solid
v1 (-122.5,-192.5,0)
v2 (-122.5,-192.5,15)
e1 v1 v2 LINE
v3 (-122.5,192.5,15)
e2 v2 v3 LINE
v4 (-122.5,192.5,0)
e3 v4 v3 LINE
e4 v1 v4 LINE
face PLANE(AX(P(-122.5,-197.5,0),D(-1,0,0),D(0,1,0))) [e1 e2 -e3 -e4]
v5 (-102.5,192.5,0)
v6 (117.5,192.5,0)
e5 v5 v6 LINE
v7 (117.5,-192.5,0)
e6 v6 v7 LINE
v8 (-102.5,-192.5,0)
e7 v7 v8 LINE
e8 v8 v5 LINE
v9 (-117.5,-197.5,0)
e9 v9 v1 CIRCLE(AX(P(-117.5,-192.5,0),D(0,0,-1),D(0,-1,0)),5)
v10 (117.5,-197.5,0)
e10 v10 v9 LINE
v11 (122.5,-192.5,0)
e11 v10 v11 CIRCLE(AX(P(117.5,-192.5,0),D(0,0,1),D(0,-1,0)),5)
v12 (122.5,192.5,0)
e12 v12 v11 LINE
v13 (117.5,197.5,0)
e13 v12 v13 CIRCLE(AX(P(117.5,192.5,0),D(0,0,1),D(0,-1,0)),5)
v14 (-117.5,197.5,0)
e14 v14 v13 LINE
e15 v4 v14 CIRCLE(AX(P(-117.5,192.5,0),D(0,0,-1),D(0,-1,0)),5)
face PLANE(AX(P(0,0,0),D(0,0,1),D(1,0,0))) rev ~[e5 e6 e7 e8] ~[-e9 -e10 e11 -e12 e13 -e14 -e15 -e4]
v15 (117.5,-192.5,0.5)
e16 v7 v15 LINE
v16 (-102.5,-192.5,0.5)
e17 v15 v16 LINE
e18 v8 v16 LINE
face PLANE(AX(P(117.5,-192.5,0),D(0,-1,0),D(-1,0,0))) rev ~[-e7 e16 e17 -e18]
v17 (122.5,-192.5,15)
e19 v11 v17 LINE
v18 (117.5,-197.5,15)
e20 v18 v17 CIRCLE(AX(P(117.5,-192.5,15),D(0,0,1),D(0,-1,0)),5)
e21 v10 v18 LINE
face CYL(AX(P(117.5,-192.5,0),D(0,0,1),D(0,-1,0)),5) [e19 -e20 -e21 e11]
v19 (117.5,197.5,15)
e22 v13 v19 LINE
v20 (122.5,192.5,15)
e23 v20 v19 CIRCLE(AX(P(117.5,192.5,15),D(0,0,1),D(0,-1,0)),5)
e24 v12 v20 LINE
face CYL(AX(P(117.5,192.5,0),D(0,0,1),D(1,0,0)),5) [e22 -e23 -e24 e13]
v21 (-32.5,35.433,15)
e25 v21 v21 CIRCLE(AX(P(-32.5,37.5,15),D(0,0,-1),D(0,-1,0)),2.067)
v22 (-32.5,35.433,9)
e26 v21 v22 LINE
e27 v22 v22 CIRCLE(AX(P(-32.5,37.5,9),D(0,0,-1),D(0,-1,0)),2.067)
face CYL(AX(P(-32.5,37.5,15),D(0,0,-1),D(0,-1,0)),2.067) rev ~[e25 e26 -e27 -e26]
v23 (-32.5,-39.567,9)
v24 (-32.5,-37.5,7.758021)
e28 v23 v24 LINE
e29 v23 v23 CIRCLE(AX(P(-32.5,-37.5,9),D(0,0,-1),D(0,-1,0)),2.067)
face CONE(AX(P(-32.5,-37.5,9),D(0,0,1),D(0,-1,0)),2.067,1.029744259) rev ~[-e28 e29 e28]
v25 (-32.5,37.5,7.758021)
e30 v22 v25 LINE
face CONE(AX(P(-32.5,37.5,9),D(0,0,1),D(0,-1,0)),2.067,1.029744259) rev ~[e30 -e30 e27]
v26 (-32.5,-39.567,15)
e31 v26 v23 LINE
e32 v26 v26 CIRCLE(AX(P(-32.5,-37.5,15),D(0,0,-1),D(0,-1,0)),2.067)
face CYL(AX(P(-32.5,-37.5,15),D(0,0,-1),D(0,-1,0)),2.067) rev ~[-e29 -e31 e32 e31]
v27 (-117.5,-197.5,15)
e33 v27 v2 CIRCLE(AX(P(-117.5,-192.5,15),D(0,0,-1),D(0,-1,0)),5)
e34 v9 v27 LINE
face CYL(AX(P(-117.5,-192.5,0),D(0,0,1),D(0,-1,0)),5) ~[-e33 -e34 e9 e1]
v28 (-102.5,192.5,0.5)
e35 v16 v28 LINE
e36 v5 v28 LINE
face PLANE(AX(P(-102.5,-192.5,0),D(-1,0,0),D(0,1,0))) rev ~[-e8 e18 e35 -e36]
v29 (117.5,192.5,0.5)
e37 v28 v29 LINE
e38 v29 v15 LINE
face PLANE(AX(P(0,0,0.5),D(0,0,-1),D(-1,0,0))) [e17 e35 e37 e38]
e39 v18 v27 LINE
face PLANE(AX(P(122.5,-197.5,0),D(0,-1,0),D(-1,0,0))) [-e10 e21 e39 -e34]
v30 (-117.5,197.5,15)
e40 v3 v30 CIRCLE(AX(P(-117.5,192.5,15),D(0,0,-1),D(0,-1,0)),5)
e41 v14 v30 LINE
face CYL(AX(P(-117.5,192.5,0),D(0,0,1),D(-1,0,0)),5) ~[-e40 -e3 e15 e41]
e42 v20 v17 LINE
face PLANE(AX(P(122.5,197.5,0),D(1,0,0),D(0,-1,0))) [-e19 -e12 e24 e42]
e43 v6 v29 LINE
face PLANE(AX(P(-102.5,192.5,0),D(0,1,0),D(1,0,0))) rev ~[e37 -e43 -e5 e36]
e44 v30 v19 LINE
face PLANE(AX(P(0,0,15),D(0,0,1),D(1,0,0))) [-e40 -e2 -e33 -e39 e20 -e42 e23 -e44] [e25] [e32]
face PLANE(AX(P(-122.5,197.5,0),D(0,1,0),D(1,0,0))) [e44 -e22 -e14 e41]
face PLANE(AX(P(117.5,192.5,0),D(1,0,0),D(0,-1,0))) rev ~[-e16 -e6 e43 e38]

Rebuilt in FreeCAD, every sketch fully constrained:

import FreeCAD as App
import Part
import Sketcher

V = App.Vector


def edges_at(feature, points):
    """Names of the edges that pass closest to the given points."""
    edges = feature.Shape.Edges
    near = lambda p: min(range(len(edges)), key=lambda i: edges[i].distToShape(Part.Vertex(*p))[0])
    return sorted({f"Edge{near(p) + 1}" for p in points})

doc = App.newDocument("Part")
body = doc.addObject("PartDesign::Body", "Body")

# Sketch on XY plane
sketch1 = body.newObject("Sketcher::SketchObject", "Sketch")
sketch1.AttachmentSupport = (doc.getObject("XY_Plane"), [""])
sketch1.MapMode = "FlatFace"
sketch1.addGeometry(Part.LineSegment(V(-122, -198, 0), V(122, -198, 0)), False)
sketch1.addGeometry(Part.LineSegment(V(122, -198, 0), V(122, 198, 0)), False)
sketch1.addGeometry(Part.LineSegment(V(122, 198, 0), V(-122, 198, 0)), False)
sketch1.addGeometry(Part.LineSegment(V(-122, 198, 0), V(-122, -198, 0)), False)
sketch1.addConstraint(Sketcher.Constraint("Coincident", 0, 2, 1, 1))
sketch1.addConstraint(Sketcher.Constraint("Coincident", 1, 2, 2, 1))
sketch1.addConstraint(Sketcher.Constraint("Coincident", 2, 2, 3, 1))
sketch1.addConstraint(Sketcher.Constraint("Coincident", 3, 2, 0, 1))
sketch1.addConstraint(Sketcher.Constraint("Horizontal", 0))
sketch1.addConstraint(Sketcher.Constraint("Vertical", 1))
sketch1.addConstraint(Sketcher.Constraint("Horizontal", 2))
sketch1.addConstraint(Sketcher.Constraint("Vertical", 3))
sketch1.addConstraint(Sketcher.Constraint("Symmetric", 0, 2, 2, 2, -1, 1))
sketch1.addConstraint(Sketcher.Constraint("DistanceX", 0, 1, 0, 2, 245.0))
sketch1.addConstraint(Sketcher.Constraint("DistanceY", 1, 1, 1, 2, 395.0))
pad1 = body.newObject("PartDesign::Pad", "Pad")
pad1.Profile = sketch1
pad1.Length = 15

# Sketch on XY plane
sketch2 = body.newObject("Sketcher::SketchObject", "Sketch001")
sketch2.AttachmentSupport = (doc.getObject("XY_Plane"), [""])
sketch2.MapMode = "FlatFace"
sketch2.AttachmentOffset = App.Placement(V(0, 0, 15), App.Rotation())
sketch2.addGeometry(Part.Circle(V(-32.5, 37.5, 0), V(0, 0, 1), 2.1), False)
sketch2.addGeometry(Part.Circle(V(-32.5, -37.5, 0), V(0, 0, 1), 2.1), False)
sketch2.addConstraint(Sketcher.Constraint("Equal", 0, 1))
sketch2.addConstraint(Sketcher.Constraint("Symmetric", 0, 3, 1, 3, -1))
sketch2.addConstraint(Sketcher.Constraint("Diameter", 0, 4.134))
sketch2.addConstraint(Sketcher.Constraint("DistanceY", 1, 3, 0, 3, 75.0))
sketch2.addConstraint(Sketcher.Constraint("DistanceX", 0, 3, -1, 1, 32.5))
doc.recompute()
hole = body.newObject("PartDesign::Hole", "Hole")
hole.Profile = sketch2
hole.ThreadType = "None"
hole.Diameter = 4.134
hole.DepthType = "Dimension"
hole.Depth = 6
hole.DrillPoint = "Angled"
hole.DrillPointAngle = 118

# Sketch on XY plane
sketch3 = body.newObject("Sketcher::SketchObject", "Sketch002")
sketch3.AttachmentSupport = (doc.getObject("XY_Plane"), [""])
sketch3.MapMode = "FlatFace"
sketch3.addGeometry(Part.LineSegment(V(-102, -192, 0), V(-102, 192, 0)), False)
sketch3.addGeometry(Part.LineSegment(V(-102, 192, 0), V(118, 192, 0)), False)
sketch3.addGeometry(Part.LineSegment(V(118, 192, 0), V(118, -192, 0)), False)
sketch3.addGeometry(Part.LineSegment(V(118, -192, 0), V(-102, -192, 0)), False)
sketch3.addConstraint(Sketcher.Constraint("Coincident", 0, 2, 1, 1))
sketch3.addConstraint(Sketcher.Constraint("Coincident", 1, 2, 2, 1))
sketch3.addConstraint(Sketcher.Constraint("Coincident", 2, 2, 3, 1))
sketch3.addConstraint(Sketcher.Constraint("Coincident", 3, 2, 0, 1))
sketch3.addConstraint(Sketcher.Constraint("Vertical", 0))
sketch3.addConstraint(Sketcher.Constraint("Horizontal", 1))
sketch3.addConstraint(Sketcher.Constraint("Vertical", 2))
sketch3.addConstraint(Sketcher.Constraint("Horizontal", 3))
sketch3.addConstraint(Sketcher.Constraint("DistanceX", 1, 1, 1, 2, 220.0))
sketch3.addConstraint(Sketcher.Constraint("DistanceY", 0, 1, 0, 2, 385.0))
sketch3.addConstraint(Sketcher.Constraint("DistanceX", 0, 2, -1, 1, 102.5))
sketch3.addConstraint(Sketcher.Constraint("DistanceY", -1, 1, 0, 2, 192.5))
pocket1 = body.newObject("PartDesign::Pocket", "Pocket")
pocket1.Profile = sketch3
pocket1.Length = 0.5
pocket1.Reversed = True
doc.recompute()

fillet = body.newObject("PartDesign::Fillet", "Fillet")
fillet.Base = (pocket1, edges_at(pocket1, [
    (122.5, -197.5, 7.5),
    (-122.5, -197.5, 7.5),
    (122.5, 197.5, 7.5),
    (-122.5, 197.5, 7.5),
]))
fillet.Radius = 5

doc.recompute()
